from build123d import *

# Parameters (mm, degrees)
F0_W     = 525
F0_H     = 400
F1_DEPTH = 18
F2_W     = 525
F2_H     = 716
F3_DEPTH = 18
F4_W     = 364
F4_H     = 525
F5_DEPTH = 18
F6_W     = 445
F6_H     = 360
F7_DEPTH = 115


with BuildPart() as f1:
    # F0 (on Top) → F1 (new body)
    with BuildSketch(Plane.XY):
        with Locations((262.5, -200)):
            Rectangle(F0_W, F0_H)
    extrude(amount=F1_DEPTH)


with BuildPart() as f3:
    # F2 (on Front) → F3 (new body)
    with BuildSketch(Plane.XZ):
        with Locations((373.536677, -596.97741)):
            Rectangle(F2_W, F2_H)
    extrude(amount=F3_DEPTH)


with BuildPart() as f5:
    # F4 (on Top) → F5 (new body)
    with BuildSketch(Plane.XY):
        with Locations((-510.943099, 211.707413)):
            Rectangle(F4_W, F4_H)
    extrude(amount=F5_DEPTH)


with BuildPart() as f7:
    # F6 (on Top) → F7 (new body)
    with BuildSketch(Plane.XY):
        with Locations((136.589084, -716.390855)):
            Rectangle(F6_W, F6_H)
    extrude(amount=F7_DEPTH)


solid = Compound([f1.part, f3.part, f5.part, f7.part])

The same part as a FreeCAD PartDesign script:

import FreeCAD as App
import Part
import Sketcher

doc = App.newDocument("Part")
params = doc.addObject("Spreadsheet::Sheet", "Params")
for row, (alias, value) in enumerate([
    ("sketch1_width", "525 mm"),
    ("sketch1_height", "400 mm"),
    ("pad1_length", "18 mm"),
    ("sketch2_width", "525 mm"),
    ("sketch2_height", "716 mm"),
    ("pad2_length", "18 mm"),
    ("sketch3_width", "364 mm"),
    ("sketch3_height", "525 mm"),
    ("pad3_length", "18 mm"),
    ("sketch4_width", "445 mm"),
    ("sketch4_height", "360 mm"),
    ("pad4_length", "115 mm"),
], start=1):
    params.set(f"A{row}", alias)
    params.set(f"B{row}", "=" + value)
    params.setAlias(f"B{row}", alias)

body = doc.addObject("PartDesign::Body", "Body")

# Sketch on XY plane
sketch1 = body.newObject("Sketcher::SketchObject", "Sketch")
sketch1.AttachmentSupport = (doc.getObject("XY_Plane"), [""])
sketch1.MapMode = "FlatFace"
sketch1.addGeometry([
    Part.LineSegment(App.Vector(0, 0, 0), App.Vector(0, -400, 0)),
    Part.LineSegment(App.Vector(0, -400, 0), App.Vector(525, -400, 0)),
    Part.LineSegment(App.Vector(525, -400, 0), App.Vector(525, 0, 0)),
    Part.LineSegment(App.Vector(525, 0, 0), App.Vector(0, 0, 0)),
], False)
sketch1.addConstraint([
    Sketcher.Constraint("Coincident", 0, 2, 1, 1),
    Sketcher.Constraint("Coincident", 1, 2, 2, 1),
    Sketcher.Constraint("Coincident", 2, 2, 3, 1),
    Sketcher.Constraint("Coincident", 3, 2, 0, 1),
    Sketcher.Constraint("Vertical", 0),
    Sketcher.Constraint("Horizontal", 1),
    Sketcher.Constraint("Vertical", 2),
    Sketcher.Constraint("Horizontal", 3),
    Sketcher.Constraint("Coincident", 3, 2, -1, 1),
    Sketcher.Constraint("DistanceX", 1, 1, 1, 2, 525.0),
    Sketcher.Constraint("DistanceY", 0, 2, 0, 1, 400.0),
])
sketch1.setExpression("Constraints[9]", "Params.sketch1_width")
sketch1.setExpression("Constraints[10]", "Params.sketch1_height")
pad1 = body.newObject("PartDesign::Pad", "Pad")
pad1.Profile = sketch1
pad1.setExpression("Length", "Params.pad1_length")
body2 = doc.addObject("PartDesign::Body", "Body001")

# Sketch on XZ plane
sketch2 = body2.newObject("Sketcher::SketchObject", "Sketch001")
sketch2.AttachmentSupport = (doc.getObject("XZ_Plane001"), [""])
sketch2.MapMode = "FlatFace"
sketch2.addGeometry([
    Part.LineSegment(App.Vector(111, -239, 0), App.Vector(111, -955, 0)),
    Part.LineSegment(App.Vector(111, -955, 0), App.Vector(636, -955, 0)),
    Part.LineSegment(App.Vector(636, -955, 0), App.Vector(636, -239, 0)),
    Part.LineSegment(App.Vector(636, -239, 0), App.Vector(111, -239, 0)),
], False)
sketch2.addConstraint([
    Sketcher.Constraint("Coincident", 0, 2, 1, 1),
    Sketcher.Constraint("Coincident", 1, 2, 2, 1),
    Sketcher.Constraint("Coincident", 2, 2, 3, 1),
    Sketcher.Constraint("Coincident", 3, 2, 0, 1),
    Sketcher.Constraint("Vertical", 0),
    Sketcher.Constraint("Horizontal", 1),
    Sketcher.Constraint("Vertical", 2),
    Sketcher.Constraint("Horizontal", 3),
    Sketcher.Constraint("DistanceX", 1, 1, 1, 2, 525.0),
    Sketcher.Constraint("DistanceY", 0, 2, 0, 1, 716.0),
    Sketcher.Constraint("DistanceY", 0, 2, -1, 1, 954.97741),
    Sketcher.Constraint("DistanceX", -1, 1, 0, 2, 111.036677),
])
sketch2.setExpression("Constraints[8]", "Params.sketch2_width")
sketch2.setExpression("Constraints[9]", "Params.sketch2_height")
pad2 = body2.newObject("PartDesign::Pad", "Pad001")
pad2.Profile = sketch2
pad2.setExpression("Length", "Params.pad2_length")
body3 = doc.addObject("PartDesign::Body", "Body002")

# Sketch on XY plane
sketch3 = body3.newObject("Sketcher::SketchObject", "Sketch002")
sketch3.AttachmentSupport = (doc.getObject("XY_Plane002"), [""])
sketch3.MapMode = "FlatFace"
sketch3.addGeometry([
    Part.LineSegment(App.Vector(-693, 474, 0), App.Vector(-693, -51, 0)),
    Part.LineSegment(App.Vector(-693, -51, 0), App.Vector(-329, -51, 0)),
    Part.LineSegment(App.Vector(-329, -51, 0), App.Vector(-329, 474, 0)),
    Part.LineSegment(App.Vector(-329, 474, 0), App.Vector(-693, 474, 0)),
], False)
sketch3.addConstraint([
    Sketcher.Constraint("Coincident", 0, 2, 1, 1),
    Sketcher.Constraint("Coincident", 1, 2, 2, 1),
    Sketcher.Constraint("Coincident", 2, 2, 3, 1),
    Sketcher.Constraint("Coincident", 3, 2, 0, 1),
    Sketcher.Constraint("Vertical", 0),
    Sketcher.Constraint("Horizontal", 1),
    Sketcher.Constraint("Vertical", 2),
    Sketcher.Constraint("Horizontal", 3),
    Sketcher.Constraint("DistanceX", 1, 1, 1, 2, 364.0),
    Sketcher.Constraint("DistanceY", 0, 2, 0, 1, 525.0),
    Sketcher.Constraint("DistanceX", 0, 2, -1, 1, 692.943099),
    Sketcher.Constraint("DistanceY", 0, 2, -1, 1, 50.792587),
])
sketch3.setExpression("Constraints[8]", "Params.sketch3_width")
sketch3.setExpression("Constraints[9]", "Params.sketch3_height")
pad3 = body3.newObject("PartDesign::Pad", "Pad002")
pad3.Profile = sketch3
pad3.setExpression("Length", "Params.pad3_length")
body4 = doc.addObject("PartDesign::Body", "Body003")

# Sketch on XY plane
sketch4 = body4.newObject("Sketcher::SketchObject", "Sketch003")
sketch4.AttachmentSupport = (doc.getObject("XY_Plane003"), [""])
sketch4.MapMode = "FlatFace"
sketch4.addGeometry([
    Part.LineSegment(App.Vector(-86, -536, 0), App.Vector(-86, -896, 0)),
    Part.LineSegment(App.Vector(-86, -896, 0), App.Vector(359, -896, 0)),
    Part.LineSegment(App.Vector(359, -896, 0), App.Vector(359, -536, 0)),
    Part.LineSegment(App.Vector(359, -536, 0), App.Vector(-86, -536, 0)),
], False)
sketch4.addConstraint([
    Sketcher.Constraint("Coincident", 0, 2, 1, 1),
    Sketcher.Constraint("Coincident", 1, 2, 2, 1),
    Sketcher.Constraint("Coincident", 2, 2, 3, 1),
    Sketcher.Constraint("Coincident", 3, 2, 0, 1),
    Sketcher.Constraint("Vertical", 0),
    Sketcher.Constraint("Horizontal", 1),
    Sketcher.Constraint("Vertical", 2),
    Sketcher.Constraint("Horizontal", 3),
    Sketcher.Constraint("DistanceX", 1, 1, 1, 2, 445.0),
    Sketcher.Constraint("DistanceY", 0, 2, 0, 1, 360.0),
    Sketcher.Constraint("DistanceX", 0, 2, -1, 1, 85.910916),
    Sketcher.Constraint("DistanceY", 0, 2, -1, 1, 896.390855),
])
sketch4.setExpression("Constraints[8]", "Params.sketch4_width")
sketch4.setExpression("Constraints[9]", "Params.sketch4_height")
pad4 = body4.newObject("PartDesign::Pad", "Pad003")
pad4.Profile = sketch4
pad4.setExpression("Length", "Params.pad4_length")

doc.recompute()
